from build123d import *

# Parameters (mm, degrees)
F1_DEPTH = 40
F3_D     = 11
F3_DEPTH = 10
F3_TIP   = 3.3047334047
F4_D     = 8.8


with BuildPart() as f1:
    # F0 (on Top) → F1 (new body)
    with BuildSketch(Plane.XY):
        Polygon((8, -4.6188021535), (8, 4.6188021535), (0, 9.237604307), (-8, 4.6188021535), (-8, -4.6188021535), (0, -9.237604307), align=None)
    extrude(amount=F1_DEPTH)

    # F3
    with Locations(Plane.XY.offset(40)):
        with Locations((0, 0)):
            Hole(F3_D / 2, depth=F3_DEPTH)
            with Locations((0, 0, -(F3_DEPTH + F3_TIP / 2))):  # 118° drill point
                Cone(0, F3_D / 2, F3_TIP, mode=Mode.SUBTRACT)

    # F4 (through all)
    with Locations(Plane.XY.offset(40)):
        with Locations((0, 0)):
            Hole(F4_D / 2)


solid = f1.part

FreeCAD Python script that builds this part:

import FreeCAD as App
import Part
import Sketcher
Q = App.Units.Quantity

doc = App.newDocument("Part")
body = doc.addObject("PartDesign::Body", "Body")

# Sketch on XY plane
sketch1 = body.newObject("Sketcher::SketchObject", "Sketch")
sketch1.AttachmentSupport = (doc.getObject("XY_Plane"), [""])
sketch1.MapMode = "FlatFace"
sketch1.addGeometry(Part.LineSegment(App.Vector(8, -4.618802, 0), App.Vector(8, 4.618802, 0)), False)
sketch1.addGeometry(Part.LineSegment(App.Vector(8, 4.618802, 0), App.Vector(0, 9.237604, 0)), False)
sketch1.addGeometry(Part.LineSegment(App.Vector(0, 9.237604, 0), App.Vector(-8, 4.618802, 0)), False)
sketch1.addGeometry(Part.LineSegment(App.Vector(-8, 4.618802, 0), App.Vector(-8, -4.618802, 0)), False)
sketch1.addGeometry(Part.LineSegment(App.Vector(-8, -4.618802, 0), App.Vector(0, -9.237604, 0)), False)
sketch1.addGeometry(Part.LineSegment(App.Vector(0, -9.237604, 0), App.Vector(8, -4.618802, 0)), False)
sketch1.addConstraint(Sketcher.Constraint("Coincident", 0, 2, 1, 1))
sketch1.addConstraint(Sketcher.Constraint("Coincident", 1, 2, 2, 1))
sketch1.addConstraint(Sketcher.Constraint("Coincident", 2, 2, 3, 1))
sketch1.addConstraint(Sketcher.Constraint("Coincident", 3, 2, 4, 1))
sketch1.addConstraint(Sketcher.Constraint("Coincident", 4, 2, 5, 1))
sketch1.addConstraint(Sketcher.Constraint("Coincident", 5, 2, 0, 1))
sketch1.addConstraint(Sketcher.Constraint("Vertical", 0))
sketch1.addConstraint(Sketcher.Constraint("Vertical", 3))
sketch1.addConstraint(Sketcher.Constraint("Symmetric", 0, 2, 3, 2, -1, 1))
sketch1.addConstraint(Sketcher.Constraint("Symmetric", 1, 2, 4, 2, -1, 1))
sketch1.addConstraint(Sketcher.Constraint("PointOnObject", 1, 2, -2))
sketch1.addConstraint(Sketcher.Constraint("Parallel", 2, 5))
sketch1.addConstraint(Sketcher.Constraint("Horizontal", 0, 2, 2, 2))
sketch1.addConstraint(Sketcher.Constraint("Angle", 1, Q("150 deg")))
sketch1.addConstraint(Sketcher.Constraint("DistanceX", -1, 1, 0, 2, Q("8 mm")))
sketch1.addConstraint(Sketcher.Constraint("DistanceY", 0, 1, 0, 2, Q("9.237604 mm")))
pad1 = body.newObject("PartDesign::Pad", "Pad")
pad1.Profile = sketch1
pad1.Length = 40

# Sketch on XY plane
sketch2 = body.newObject("Sketcher::SketchObject", "Sketch001")
sketch2.AttachmentSupport = (doc.getObject("XY_Plane"), [""])
sketch2.MapMode = "FlatFace"
sketch2.AttachmentOffset = App.Placement(App.Vector(0, 0, 40), App.Rotation())
sketch2.addGeometry(Part.Circle(App.Vector(0, 0, 0), App.Vector(0, 0, 1), 5.5), False)
sketch2.addConstraint(Sketcher.Constraint("Coincident", 0, 3, -1, 1))
sketch2.addConstraint(Sketcher.Constraint("Diameter", 0, Q("11 mm")))
doc.recompute()
hole = body.newObject("PartDesign::Hole", "Hole")
hole.Profile = sketch2
hole.ThreadType = "None"
hole.Diameter = 11
hole.DepthType = "Dimension"
hole.Depth = 10
hole.DrillPoint = "Angled"
hole.DrillPointAngle = 118

# Sketch on XY plane
sketch3 = body.newObject("Sketcher::SketchObject", "Sketch002")
sketch3.AttachmentSupport = (doc.getObject("XY_Plane"), [""])
sketch3.MapMode = "FlatFace"
sketch3.AttachmentOffset = App.Placement(App.Vector(0, 0, 40), App.Rotation())
sketch3.addGeometry(Part.Circle(App.Vector(0, 0, 0), App.Vector(0, 0, 1), 4.4), False)
sketch3.addConstraint(Sketcher.Constraint("Coincident", 0, 3, -1, 1))
sketch3.addConstraint(Sketcher.Constraint("Diameter", 0, Q("8.8 mm")))
doc.recompute()
hole2 = body.newObject("PartDesign::Hole", "Hole001")
hole2.Profile = sketch3
hole2.ThreadType = "None"
hole2.Diameter = 8.8
hole2.DepthType = "ThroughAll"

doc.recompute()
